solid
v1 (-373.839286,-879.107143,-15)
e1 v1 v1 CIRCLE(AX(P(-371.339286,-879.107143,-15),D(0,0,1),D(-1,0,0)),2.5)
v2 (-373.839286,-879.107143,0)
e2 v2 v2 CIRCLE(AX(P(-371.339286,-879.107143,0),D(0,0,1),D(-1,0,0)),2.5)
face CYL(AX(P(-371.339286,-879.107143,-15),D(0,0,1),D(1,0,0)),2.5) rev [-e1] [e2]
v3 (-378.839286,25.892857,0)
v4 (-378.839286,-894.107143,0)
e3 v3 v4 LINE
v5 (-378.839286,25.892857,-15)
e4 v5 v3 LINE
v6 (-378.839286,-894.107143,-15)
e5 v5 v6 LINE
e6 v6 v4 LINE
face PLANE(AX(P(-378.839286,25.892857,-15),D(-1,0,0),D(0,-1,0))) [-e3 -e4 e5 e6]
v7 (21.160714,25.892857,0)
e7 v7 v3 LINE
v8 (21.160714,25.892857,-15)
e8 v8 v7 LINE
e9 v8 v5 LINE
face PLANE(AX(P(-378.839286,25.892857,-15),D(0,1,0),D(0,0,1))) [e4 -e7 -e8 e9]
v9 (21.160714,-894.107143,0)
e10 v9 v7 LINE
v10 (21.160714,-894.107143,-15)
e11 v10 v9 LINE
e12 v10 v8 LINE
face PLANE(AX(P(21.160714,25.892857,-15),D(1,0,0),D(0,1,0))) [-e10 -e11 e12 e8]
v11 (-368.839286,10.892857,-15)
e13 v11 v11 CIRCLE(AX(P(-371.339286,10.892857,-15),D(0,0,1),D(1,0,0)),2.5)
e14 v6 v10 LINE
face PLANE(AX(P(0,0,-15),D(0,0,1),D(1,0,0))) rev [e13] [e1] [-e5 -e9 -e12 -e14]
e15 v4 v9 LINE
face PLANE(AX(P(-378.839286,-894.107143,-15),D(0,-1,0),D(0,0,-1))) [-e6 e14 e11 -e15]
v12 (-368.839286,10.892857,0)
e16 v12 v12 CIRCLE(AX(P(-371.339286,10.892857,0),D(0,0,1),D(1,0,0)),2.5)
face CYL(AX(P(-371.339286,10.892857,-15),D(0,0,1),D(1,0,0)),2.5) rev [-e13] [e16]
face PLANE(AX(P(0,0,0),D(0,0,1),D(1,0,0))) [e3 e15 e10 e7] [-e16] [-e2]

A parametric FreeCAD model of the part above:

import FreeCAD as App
import Part
import Sketcher
Q = App.Units.Quantity

doc = App.newDocument("Part")
body = doc.addObject("PartDesign::Body", "Body")

sketch1 = doc.addObject("Sketcher::SketchObject", "Sketch")
body.addObject(sketch1)
sketch1.AttachmentSupport = (doc.XY_Plane, [""])
sketch1.MapMode = "FlatFace"
sketch1.addGeometry(Part.LineSegment(App.Vector(-379, 26, 0), App.Vector(-379, -894, 0)), False)
sketch1.addGeometry(Part.LineSegment(App.Vector(-379, -894, 0), App.Vector(21, -894, 0)), False)
sketch1.addGeometry(Part.LineSegment(App.Vector(21, -894, 0), App.Vector(21, 26, 0)), False)
sketch1.addGeometry(Part.LineSegment(App.Vector(21, 26, 0), App.Vector(-379, 26, 0)), False)
sketch1.addConstraint(Sketcher.Constraint("Coincident", 0, 2, 1, 1))
sketch1.addConstraint(Sketcher.Constraint("Coincident", 1, 2, 2, 1))
sketch1.addConstraint(Sketcher.Constraint("Coincident", 2, 2, 3, 1))
sketch1.addConstraint(Sketcher.Constraint("Coincident", 3, 2, 0, 1))
sketch1.addConstraint(Sketcher.Constraint("Vertical", 0))
sketch1.addConstraint(Sketcher.Constraint("Horizontal", 1))
sketch1.addConstraint(Sketcher.Constraint("Vertical", 2))
sketch1.addConstraint(Sketcher.Constraint("Horizontal", 3))
sketch1.addConstraint(Sketcher.Constraint("DistanceX", 1, 1, 1, 2, Q("400 mm")))
sketch1.addConstraint(Sketcher.Constraint("DistanceY", 0, 2, 0, 1, Q("920 mm")))
sketch1.addConstraint(Sketcher.Constraint("DistanceX", 0, 2, -1, 1, Q("378.839286 mm")))
sketch1.addConstraint(Sketcher.Constraint("DistanceY", 0, 2, -1, 1, Q("894.107143 mm")))
pad1 = doc.addObject("PartDesign::Pad", "Pad")
body.addObject(pad1)
pad1.Profile = sketch1
pad1.Length = 15
pad1.Reversed = True

sketch2 = doc.addObject("Sketcher::SketchObject", "Sketch001")
body.addObject(sketch2)
sketch2.AttachmentSupport = (doc.XY_Plane, [""])
sketch2.MapMode = "FlatFace"
sketch2.addGeometry(Part.Circle(App.Vector(-371.3, 10.9, 0), App.Vector(0, 0, 1), 2.5), False)
sketch2.addGeometry(Part.Circle(App.Vector(-371.3, -879.1, 0), App.Vector(0, 0, 1), 2.5), False)
sketch2.addConstraint(Sketcher.Constraint("Equal", 0, 1))
sketch2.addConstraint(Sketcher.Constraint("Vertical", 0, 3, 1, 3))
sketch2.addConstraint(Sketcher.Constraint("Diameter", 0, Q("5 mm")))
sketch2.addConstraint(Sketcher.Constraint("DistanceY", 1, 3, 0, 3, Q("890 mm")))
sketch2.addConstraint(Sketcher.Constraint("DistanceX", 0, 3, -1, 1, Q("371.339286 mm")))
sketch2.addConstraint(Sketcher.Constraint("DistanceY", -1, 1, 0, 3, Q("10.892857 mm")))
pocket1 = doc.addObject("PartDesign::Pocket", "Pocket")
body.addObject(pocket1)
pocket1.Profile = sketch2
pocket1.Type = "ThroughAll"

doc.recompute()
